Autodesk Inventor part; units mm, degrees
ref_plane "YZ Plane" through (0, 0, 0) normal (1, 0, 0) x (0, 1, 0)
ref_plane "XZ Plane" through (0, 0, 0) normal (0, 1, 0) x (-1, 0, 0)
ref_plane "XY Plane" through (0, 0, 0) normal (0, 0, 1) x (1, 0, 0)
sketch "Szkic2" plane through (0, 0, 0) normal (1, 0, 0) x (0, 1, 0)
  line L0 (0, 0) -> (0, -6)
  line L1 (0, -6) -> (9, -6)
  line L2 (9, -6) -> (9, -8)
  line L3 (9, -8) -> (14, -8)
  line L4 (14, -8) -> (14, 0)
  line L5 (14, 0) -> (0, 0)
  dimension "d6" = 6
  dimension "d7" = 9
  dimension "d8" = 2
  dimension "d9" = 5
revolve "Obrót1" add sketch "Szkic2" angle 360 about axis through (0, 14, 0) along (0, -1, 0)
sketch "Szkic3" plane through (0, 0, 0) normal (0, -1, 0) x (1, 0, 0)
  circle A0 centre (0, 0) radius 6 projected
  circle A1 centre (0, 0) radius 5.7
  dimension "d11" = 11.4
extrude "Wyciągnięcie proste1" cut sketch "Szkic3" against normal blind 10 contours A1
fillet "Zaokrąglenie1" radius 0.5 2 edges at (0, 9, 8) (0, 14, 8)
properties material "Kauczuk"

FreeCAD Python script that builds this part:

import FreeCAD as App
import Part
import Sketcher
from FreeCAD import Vector


def edges_at(feature, points):
    """Names of the edges that pass closest to the given points."""
    edges = feature.Shape.Edges
    near = lambda p: min(range(len(edges)), key=lambda i: edges[i].distToShape(Part.Vertex(*p))[0])
    return sorted({f"Edge{near(p) + 1}" for p in points})

doc = App.newDocument("Part")
body = doc.addObject("PartDesign::Body", "Body")

# Sketch on YZ plane
sketch1 = body.newObject("Sketcher::SketchObject", "Sketch")
sketch1.AttachmentSupport = (doc.getObject("YZ_Plane"), [""])
sketch1.MapMode = "FlatFace"
sketch1.addGeometry([
    Part.LineSegment(Vector(14, 0, 0), Vector(0, 0, 0)),  # 0
    Part.LineSegment(Vector(0, 0, 0), Vector(0, -6, 0)),  # 1
    Part.LineSegment(Vector(0, -6, 0), Vector(9, -6, 0)),  # 2
    Part.LineSegment(Vector(9, -6, 0), Vector(9, -8, 0)),  # 3
    Part.LineSegment(Vector(9, -8, 0), Vector(14, -8, 0)),  # 4
    Part.LineSegment(Vector(14, -8, 0), Vector(14, 0, 0)),  # 5
], False)
sketch1.addConstraint([
    Sketcher.Constraint("Coincident", 0, 2, 1, 1),
    Sketcher.Constraint("Coincident", 1, 2, 2, 1),
    Sketcher.Constraint("Coincident", 2, 2, 3, 1),
    Sketcher.Constraint("Coincident", 3, 2, 4, 1),
    Sketcher.Constraint("Coincident", 4, 2, 5, 1),
    Sketcher.Constraint("Coincident", 5, 2, 0, 1),
    Sketcher.Constraint("Horizontal", 0),
    Sketcher.Constraint("Vertical", 1),
    Sketcher.Constraint("Horizontal", 2),
    Sketcher.Constraint("Vertical", 3),
    Sketcher.Constraint("Horizontal", 4),
    Sketcher.Constraint("Vertical", 5),
    Sketcher.Constraint("Coincident", 0, 2, -1, 1),
    Sketcher.Constraint("DistanceX", 2, 1, 2, 2, 9.0),
    Sketcher.Constraint("DistanceX", 4, 1, 4, 2, 5.0),
    Sketcher.Constraint("DistanceY", 1, 2, 1, 1, 6.0),
    Sketcher.Constraint("DistanceY", 3, 2, 3, 1, 2.0),
])
revolution = body.newObject("PartDesign::Revolution", "Revolution")
revolution.Profile = sketch1
revolution.ReferenceAxis = (sketch1, ["H_Axis"])
revolution.Angle = 360

# Sketch on XZ plane
sketch2 = body.newObject("Sketcher::SketchObject", "Sketch001")
sketch2.AttachmentSupport = (doc.getObject("XZ_Plane"), [""])
sketch2.MapMode = "FlatFace"
sketch2.addGeometry(Part.Circle(Vector(0, 0, 0), Vector(0, 0, 1), 5.7), False)
sketch2.addConstraint([
    Sketcher.Constraint("Coincident", 0, 3, -1, 1),
    Sketcher.Constraint("Diameter", 0, 11.4),
])
pocket1 = body.newObject("PartDesign::Pocket", "Pocket")
pocket1.Profile = sketch2
pocket1.Length = 10
doc.recompute()

fillet = body.newObject("PartDesign::Fillet", "Fillet")
fillet.Base = (pocket1, edges_at(pocket1, [(0, 9, 8), (0, 14, 8)]))
fillet.Radius = 0.5

doc.recompute()
